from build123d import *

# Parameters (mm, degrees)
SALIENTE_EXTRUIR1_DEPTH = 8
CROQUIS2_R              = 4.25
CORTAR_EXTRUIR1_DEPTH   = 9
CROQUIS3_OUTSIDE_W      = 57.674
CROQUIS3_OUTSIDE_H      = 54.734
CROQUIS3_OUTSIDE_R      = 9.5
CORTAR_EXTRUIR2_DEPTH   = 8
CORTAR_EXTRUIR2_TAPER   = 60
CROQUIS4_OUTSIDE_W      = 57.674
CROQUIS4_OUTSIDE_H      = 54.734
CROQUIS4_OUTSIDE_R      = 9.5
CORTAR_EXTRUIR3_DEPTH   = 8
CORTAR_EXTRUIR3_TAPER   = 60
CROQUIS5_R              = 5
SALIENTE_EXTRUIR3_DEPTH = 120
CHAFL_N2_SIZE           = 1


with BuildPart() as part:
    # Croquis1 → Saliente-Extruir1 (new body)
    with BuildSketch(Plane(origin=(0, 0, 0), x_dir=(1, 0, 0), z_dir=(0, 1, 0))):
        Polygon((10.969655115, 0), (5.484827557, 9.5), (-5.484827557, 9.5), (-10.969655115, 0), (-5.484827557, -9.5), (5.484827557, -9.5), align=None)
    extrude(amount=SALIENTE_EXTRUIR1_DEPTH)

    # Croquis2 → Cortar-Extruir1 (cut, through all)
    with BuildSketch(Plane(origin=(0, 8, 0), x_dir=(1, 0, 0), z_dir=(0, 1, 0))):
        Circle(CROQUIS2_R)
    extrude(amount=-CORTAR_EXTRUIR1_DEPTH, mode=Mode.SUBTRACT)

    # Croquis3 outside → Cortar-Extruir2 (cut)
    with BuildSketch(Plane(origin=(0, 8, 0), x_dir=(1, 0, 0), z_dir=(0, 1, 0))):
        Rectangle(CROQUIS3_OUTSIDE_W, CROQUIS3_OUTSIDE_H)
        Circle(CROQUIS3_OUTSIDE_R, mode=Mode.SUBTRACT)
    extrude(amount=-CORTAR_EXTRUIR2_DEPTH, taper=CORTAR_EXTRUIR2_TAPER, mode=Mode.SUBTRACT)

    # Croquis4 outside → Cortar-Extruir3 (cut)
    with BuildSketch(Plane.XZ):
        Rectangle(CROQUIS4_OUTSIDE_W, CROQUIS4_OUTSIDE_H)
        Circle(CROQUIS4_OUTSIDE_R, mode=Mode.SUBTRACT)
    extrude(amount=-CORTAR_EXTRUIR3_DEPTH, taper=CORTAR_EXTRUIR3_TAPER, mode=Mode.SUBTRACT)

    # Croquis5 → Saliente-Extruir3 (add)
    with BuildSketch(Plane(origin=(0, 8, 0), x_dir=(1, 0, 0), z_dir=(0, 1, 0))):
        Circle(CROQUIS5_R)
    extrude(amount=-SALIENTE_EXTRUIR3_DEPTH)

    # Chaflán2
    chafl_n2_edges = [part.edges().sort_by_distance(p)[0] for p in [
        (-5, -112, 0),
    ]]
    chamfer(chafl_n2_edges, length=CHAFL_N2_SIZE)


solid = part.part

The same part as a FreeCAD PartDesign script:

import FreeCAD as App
import Part
import Sketcher

V = App.Vector
Q = App.Units.Quantity


def edges_at(feature, points):
    """Names of the edges that pass closest to the given points."""
    edges = feature.Shape.Edges
    near = lambda p: min(range(len(edges)), key=lambda i: edges[i].distToShape(Part.Vertex(*p))[0])
    return sorted({f"Edge{near(p) + 1}" for p in points})

doc = App.newDocument("Part")
body = doc.addObject("PartDesign::Body", "Body")

sketch1 = doc.addObject("Sketcher::SketchObject", "Sketch")
body.addObject(sketch1)
sketch1.AttachmentSupport = (doc.XZ_Plane, [""])
sketch1.MapMode = "FlatFace"
sketch1.addGeometry(Part.LineSegment(V(11, 0, 0), V(5, -10, 0)), False)
sketch1.addGeometry(Part.LineSegment(V(5, -10, 0), V(-5, -10, 0)), False)
sketch1.addGeometry(Part.LineSegment(V(-5, -10, 0), V(-11, 0, 0)), False)
sketch1.addGeometry(Part.LineSegment(V(-11, 0, 0), V(-5, 10, 0)), False)
sketch1.addGeometry(Part.LineSegment(V(-5, 10, 0), V(5, 10, 0)), False)
sketch1.addGeometry(Part.LineSegment(V(5, 10, 0), V(11, 0, 0)), False)
sketch1.addConstraint(Sketcher.Constraint("Coincident", 0, 2, 1, 1))
sketch1.addConstraint(Sketcher.Constraint("Coincident", 1, 2, 2, 1))
sketch1.addConstraint(Sketcher.Constraint("Coincident", 2, 2, 3, 1))
sketch1.addConstraint(Sketcher.Constraint("Coincident", 3, 2, 4, 1))
sketch1.addConstraint(Sketcher.Constraint("Coincident", 4, 2, 5, 1))
sketch1.addConstraint(Sketcher.Constraint("Coincident", 5, 2, 0, 1))
sketch1.addConstraint(Sketcher.Constraint("Horizontal", 1))
sketch1.addConstraint(Sketcher.Constraint("Horizontal", 4))
sketch1.addConstraint(Sketcher.Constraint("Symmetric", 0, 2, 3, 2, -1, 1))
sketch1.addConstraint(Sketcher.Constraint("Symmetric", 2, 2, 5, 2, -1, 1))
sketch1.addConstraint(Sketcher.Constraint("PointOnObject", 2, 2, -1))
sketch1.addConstraint(Sketcher.Constraint("Parallel", 2, 5))
sketch1.addConstraint(Sketcher.Constraint("Vertical", 1, 2, 3, 2))
sketch1.addConstraint(Sketcher.Constraint("Angle", 0, Q("-120 deg")))
sketch1.addConstraint(Sketcher.Constraint("DistanceY", 1, 2, 3, 2, Q("19 mm")))
sketch1.addConstraint(Sketcher.Constraint("DistanceX", 1, 2, 1, 1, Q("10.969655 mm")))
pad1 = doc.addObject("PartDesign::Pad", "Pad")
body.addObject(pad1)
pad1.Profile = sketch1
pad1.Length = 8
pad1.Reversed = True

sketch2 = doc.addObject("Sketcher::SketchObject", "Sketch001")
body.addObject(sketch2)
sketch2.AttachmentSupport = (doc.XZ_Plane, [""])
sketch2.MapMode = "FlatFace"
sketch2.AttachmentOffset = App.Placement(V(0, 0, -8), App.Rotation())
sketch2.addGeometry(Part.Circle(V(0, 0, 0), V(0, 0, 1), 4.2), False)
sketch2.addConstraint(Sketcher.Constraint("Coincident", 0, 3, -1, 1))
sketch2.addConstraint(Sketcher.Constraint("Diameter", 0, Q("8.5 mm")))
pocket1 = doc.addObject("PartDesign::Pocket", "Pocket")
body.addObject(pocket1)
pocket1.Profile = sketch2
pocket1.Type = "ThroughAll"
pocket1.Reversed = True

sketch3 = doc.addObject("Sketcher::SketchObject", "Sketch002")
body.addObject(sketch3)
sketch3.AttachmentSupport = (doc.XZ_Plane, [""])
sketch3.MapMode = "FlatFace"
sketch3.AttachmentOffset = App.Placement(V(0, 0, -8), App.Rotation())
sketch3.addGeometry(Part.LineSegment(V(-29, -27, 0), V(-29, 27, 0)), False)
sketch3.addGeometry(Part.LineSegment(V(-29, 27, 0), V(29, 27, 0)), False)
sketch3.addGeometry(Part.LineSegment(V(29, 27, 0), V(29, -27, 0)), False)
sketch3.addGeometry(Part.LineSegment(V(29, -27, 0), V(-29, -27, 0)), False)
sketch3.addGeometry(Part.Circle(V(0, 0, 0), V(0, 0, 1), 10), False)
sketch3.addConstraint(Sketcher.Constraint("Coincident", 0, 2, 1, 1))
sketch3.addConstraint(Sketcher.Constraint("Coincident", 1, 2, 2, 1))
sketch3.addConstraint(Sketcher.Constraint("Coincident", 2, 2, 3, 1))
sketch3.addConstraint(Sketcher.Constraint("Coincident", 3, 2, 0, 1))
sketch3.addConstraint(Sketcher.Constraint("Vertical", 0))
sketch3.addConstraint(Sketcher.Constraint("Horizontal", 1))
sketch3.addConstraint(Sketcher.Constraint("Vertical", 2))
sketch3.addConstraint(Sketcher.Constraint("Horizontal", 3))
sketch3.addConstraint(Sketcher.Constraint("Coincident", 4, 3, -1, 1))
sketch3.addConstraint(Sketcher.Constraint("Symmetric", 0, 2, 2, 2, -1, 1))
sketch3.addConstraint(Sketcher.Constraint("Diameter", 4, Q("19 mm")))
sketch3.addConstraint(Sketcher.Constraint("DistanceX", 1, 1, 1, 2, Q("57.674 mm")))
sketch3.addConstraint(Sketcher.Constraint("DistanceY", 0, 1, 0, 2, Q("54.734 mm")))
pocket2 = doc.addObject("PartDesign::Pocket", "Pocket001")
body.addObject(pocket2)
pocket2.Profile = sketch3
pocket2.Length = 8
pocket2.Reversed = True
pocket2.TaperAngle = 60

sketch4 = doc.addObject("Sketcher::SketchObject", "Sketch003")
body.addObject(sketch4)
sketch4.AttachmentSupport = (doc.XZ_Plane, [""])
sketch4.MapMode = "FlatFace"
sketch4.addGeometry(Part.LineSegment(V(-29, 27, 0), V(-29, -27, 0)), False)
sketch4.addGeometry(Part.LineSegment(V(-29, -27, 0), V(29, -27, 0)), False)
sketch4.addGeometry(Part.LineSegment(V(29, -27, 0), V(29, 27, 0)), False)
sketch4.addGeometry(Part.LineSegment(V(29, 27, 0), V(-29, 27, 0)), False)
sketch4.addGeometry(Part.Circle(V(0, 0, 0), V(0, 0, 1), 10), False)
sketch4.addConstraint(Sketcher.Constraint("Coincident", 0, 2, 1, 1))
sketch4.addConstraint(Sketcher.Constraint("Coincident", 1, 2, 2, 1))
sketch4.addConstraint(Sketcher.Constraint("Coincident", 2, 2, 3, 1))
sketch4.addConstraint(Sketcher.Constraint("Coincident", 3, 2, 0, 1))
sketch4.addConstraint(Sketcher.Constraint("Vertical", 0))
sketch4.addConstraint(Sketcher.Constraint("Horizontal", 1))
sketch4.addConstraint(Sketcher.Constraint("Vertical", 2))
sketch4.addConstraint(Sketcher.Constraint("Horizontal", 3))
sketch4.addConstraint(Sketcher.Constraint("Coincident", 4, 3, -1, 1))
sketch4.addConstraint(Sketcher.Constraint("Symmetric", 0, 2, 2, 2, -1, 1))
sketch4.addConstraint(Sketcher.Constraint("Diameter", 4, Q("19 mm")))
sketch4.addConstraint(Sketcher.Constraint("DistanceX", 1, 1, 1, 2, Q("57.674 mm")))
sketch4.addConstraint(Sketcher.Constraint("DistanceY", 0, 2, 0, 1, Q("54.734 mm")))
pocket3 = doc.addObject("PartDesign::Pocket", "Pocket002")
body.addObject(pocket3)
pocket3.Profile = sketch4
pocket3.Length = 8
pocket3.TaperAngle = 60

sketch5 = doc.addObject("Sketcher::SketchObject", "Sketch004")
body.addObject(sketch5)
sketch5.AttachmentSupport = (doc.XZ_Plane, [""])
sketch5.MapMode = "FlatFace"
sketch5.AttachmentOffset = App.Placement(V(0, 0, -8), App.Rotation())
sketch5.addGeometry(Part.Circle(V(0, 0, 0), V(0, 0, 1), 5), False)
sketch5.addConstraint(Sketcher.Constraint("Coincident", 0, 3, -1, 1))
sketch5.addConstraint(Sketcher.Constraint("Diameter", 0, Q("10 mm")))
pad2 = doc.addObject("PartDesign::Pad", "Pad001")
body.addObject(pad2)
pad2.Profile = sketch5
pad2.Length = 120
doc.recompute()

chamfer = doc.addObject("PartDesign::Chamfer", "Chamfer")
body.addObject(chamfer)
chamfer.Base = (pad2, edges_at(pad2, [(-5, -112, 0)]))
chamfer.Size = 1

doc.recompute()
